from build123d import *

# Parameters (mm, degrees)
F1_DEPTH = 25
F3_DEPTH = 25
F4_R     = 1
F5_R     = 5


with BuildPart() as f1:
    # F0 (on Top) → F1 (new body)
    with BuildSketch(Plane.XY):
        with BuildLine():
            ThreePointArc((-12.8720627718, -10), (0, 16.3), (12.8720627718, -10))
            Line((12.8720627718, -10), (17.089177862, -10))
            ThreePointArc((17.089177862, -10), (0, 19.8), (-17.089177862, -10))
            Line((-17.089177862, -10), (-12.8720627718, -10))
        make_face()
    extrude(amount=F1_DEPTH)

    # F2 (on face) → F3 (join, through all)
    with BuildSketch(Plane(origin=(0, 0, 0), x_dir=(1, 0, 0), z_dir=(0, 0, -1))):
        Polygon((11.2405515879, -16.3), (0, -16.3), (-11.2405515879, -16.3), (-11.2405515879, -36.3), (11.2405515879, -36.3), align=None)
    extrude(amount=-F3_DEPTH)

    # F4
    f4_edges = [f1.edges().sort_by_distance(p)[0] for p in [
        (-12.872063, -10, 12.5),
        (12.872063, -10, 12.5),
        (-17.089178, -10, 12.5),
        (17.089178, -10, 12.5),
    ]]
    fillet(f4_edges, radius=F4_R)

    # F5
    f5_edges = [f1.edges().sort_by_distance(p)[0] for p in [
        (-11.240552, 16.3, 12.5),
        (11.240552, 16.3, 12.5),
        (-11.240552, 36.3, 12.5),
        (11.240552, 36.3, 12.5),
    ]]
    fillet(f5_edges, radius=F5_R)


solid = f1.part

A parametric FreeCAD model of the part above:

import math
import FreeCAD as App
import Part
import Sketcher
Q = App.Units.Quantity


def edges_at(feature, points):
    """Names of the edges that pass closest to the given points."""
    edges = feature.Shape.Edges
    near = lambda p: min(range(len(edges)), key=lambda i: edges[i].distToShape(Part.Vertex(*p))[0])
    return sorted({f"Edge{near(p) + 1}" for p in points})

doc = App.newDocument("Part")
body = doc.addObject("PartDesign::Body", "Body")

# Sketch on XY plane
sketch1 = body.newObject("Sketcher::SketchObject", "Sketch")
sketch1.AttachmentSupport = (doc.getObject("XY_Plane"), [""])
sketch1.MapMode = "FlatFace"
sketch1.addGeometry([
    Part.ArcOfCircle(Part.Circle(App.Vector(0, 0, 0), App.Vector(0, 0, 1), 16.3), math.radians(-38), math.radians(218)),
    Part.LineSegment(App.Vector(12.9, -10, 0), App.Vector(17.1, -10, 0)),
    Part.ArcOfCircle(Part.Circle(App.Vector(0, 0, 0), App.Vector(0, 0, 1), 19.8), math.radians(-30), math.radians(210)),
    Part.LineSegment(App.Vector(-17.1, -10, 0), App.Vector(-12.9, -10, 0)),
], False)
sketch1.addConstraint([
    Sketcher.Constraint("Coincident", 0, 1, 1, 1),
    Sketcher.Constraint("Coincident", 1, 2, 2, 1),
    Sketcher.Constraint("Coincident", 2, 2, 3, 1),
    Sketcher.Constraint("Coincident", 3, 2, 0, 2),
    Sketcher.Constraint("Horizontal", 1),
    Sketcher.Constraint("Horizontal", 3),
    Sketcher.Constraint("Coincident", 0, 3, -1, 1),
    Sketcher.Constraint("Coincident", 2, 3, -1, 1),
    Sketcher.Constraint("Horizontal", 1, 2, 2, 2),
    Sketcher.Constraint("Radius", 0, Q("16.3 mm")),
    Sketcher.Constraint("Radius", 2, Q("19.8 mm")),
    Sketcher.Constraint("DistanceY", 0, 1, -1, 1, Q("10 mm")),
])
pad1 = body.newObject("PartDesign::Pad", "Pad")
pad1.Profile = sketch1
pad1.Length = 25

# Sketch on XY plane
sketch2 = body.newObject("Sketcher::SketchObject", "Sketch001")
sketch2.AttachmentSupport = (doc.getObject("XY_Plane"), [""])
sketch2.MapMode = "FlatFace"
sketch2.addGeometry([
    Part.LineSegment(App.Vector(11, 16, 0), App.Vector(-11, 16, 0)),
    Part.LineSegment(App.Vector(-11, 16, 0), App.Vector(-11, 36, 0)),
    Part.LineSegment(App.Vector(-11, 36, 0), App.Vector(11, 36, 0)),
    Part.LineSegment(App.Vector(11, 36, 0), App.Vector(11, 16, 0)),
], False)
sketch2.addConstraint([
    Sketcher.Constraint("Coincident", 0, 2, 1, 1),
    Sketcher.Constraint("Coincident", 1, 2, 2, 1),
    Sketcher.Constraint("Coincident", 2, 2, 3, 1),
    Sketcher.Constraint("Coincident", 3, 2, 0, 1),
    Sketcher.Constraint("Horizontal", 0),
    Sketcher.Constraint("Vertical", 1),
    Sketcher.Constraint("Horizontal", 2),
    Sketcher.Constraint("Vertical", 3),
    Sketcher.Constraint("DistanceY", 1, 1, 1, 2, Q("20 mm")),
    Sketcher.Constraint("DistanceY", -1, 1, 0, 2, Q("16.3 mm")),
    Sketcher.Constraint("DistanceX", 0, 2, 0, 1, Q("22.481103 mm")),
    Sketcher.Constraint("DistanceX", 0, 2, -1, 1, Q("11.240552 mm")),
])
pad2 = body.newObject("PartDesign::Pad", "Pad001")
pad2.Profile = sketch2
pad2.Length = 25
doc.recompute()

fillet = body.newObject("PartDesign::Fillet", "Fillet")
fillet.Base = (pad2, edges_at(pad2, [
    (-12.872, -10, 12.5),
    (12.872, -10, 12.5),
    (-17.089, -10, 12.5),
    (17.089, -10, 12.5),
]))
fillet.Radius = 1
doc.recompute()

fillet2 = body.newObject("PartDesign::Fillet", "Fillet001")
fillet2.Base = (fillet, edges_at(fillet, [
    (-11.241, 16.3, 12.5),
    (11.241, 16.3, 12.5),
    (-11.241, 36.3, 12.5),
    (11.241, 36.3, 12.5),
]))
fillet2.Radius = 5

doc.recompute()
